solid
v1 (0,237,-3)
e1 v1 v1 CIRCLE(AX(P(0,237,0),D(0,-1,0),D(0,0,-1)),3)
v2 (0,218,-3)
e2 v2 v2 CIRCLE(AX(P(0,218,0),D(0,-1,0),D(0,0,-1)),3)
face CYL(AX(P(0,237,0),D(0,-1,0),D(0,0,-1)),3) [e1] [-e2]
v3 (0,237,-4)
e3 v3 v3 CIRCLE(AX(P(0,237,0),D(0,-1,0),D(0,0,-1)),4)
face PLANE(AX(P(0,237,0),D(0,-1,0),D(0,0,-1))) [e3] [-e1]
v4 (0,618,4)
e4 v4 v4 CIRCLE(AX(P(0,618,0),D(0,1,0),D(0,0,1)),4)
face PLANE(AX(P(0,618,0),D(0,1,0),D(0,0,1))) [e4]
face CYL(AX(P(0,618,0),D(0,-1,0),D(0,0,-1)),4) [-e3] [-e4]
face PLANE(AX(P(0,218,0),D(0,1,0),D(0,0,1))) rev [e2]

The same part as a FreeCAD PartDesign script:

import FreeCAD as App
import Part
import Sketcher
from FreeCAD import Vector

doc = App.newDocument("Part")
body = doc.addObject("PartDesign::Body", "Body")

sketch1 = body.newObject("Sketcher::SketchObject", "Sketch")
sketch1.AttachmentSupport = (doc.getObject("XZ_Plane"), [""])
sketch1.MapMode = "FlatFace"
sketch1.AttachmentOffset = App.Placement(Vector(0, 0, -218), App.Rotation())
sketch1.addGeometry(Part.Circle(Vector(0, 0, 0), Vector(0, 0, 1), 4), False)
sketch1.addConstraint([
    Sketcher.Constraint("Coincident", 0, 3, -1, 1),
    Sketcher.Constraint("Diameter", 0, 8.0),
])
pad1 = body.newObject("PartDesign::Pad", "Pad")
pad1.Profile = sketch1
pad1.Length = 400
pad1.Reversed = True

sketch2 = body.newObject("Sketcher::SketchObject", "Sketch001")
sketch2.AttachmentSupport = (doc.getObject("XZ_Plane"), [""])
sketch2.MapMode = "FlatFace"
sketch2.AttachmentOffset = App.Placement(Vector(0, 0, -218), App.Rotation())
sketch2.addGeometry([
    Part.Circle(Vector(0, 0, 0), Vector(0, 0, 1), 4),
    Part.Circle(Vector(0, 0, 0), Vector(0, 0, 1), 3),
], False)
sketch2.addConstraint([
    Sketcher.Constraint("Coincident", 0, 3, -1, 1),
    Sketcher.Constraint("Coincident", 1, 3, -1, 1),
    Sketcher.Constraint("Diameter", 0, 8.0),
    Sketcher.Constraint("Diameter", 1, 6.0),
])
pocket1 = body.newObject("PartDesign::Pocket", "Pocket")
pocket1.Profile = sketch2
pocket1.Length = 19

doc.recompute()
